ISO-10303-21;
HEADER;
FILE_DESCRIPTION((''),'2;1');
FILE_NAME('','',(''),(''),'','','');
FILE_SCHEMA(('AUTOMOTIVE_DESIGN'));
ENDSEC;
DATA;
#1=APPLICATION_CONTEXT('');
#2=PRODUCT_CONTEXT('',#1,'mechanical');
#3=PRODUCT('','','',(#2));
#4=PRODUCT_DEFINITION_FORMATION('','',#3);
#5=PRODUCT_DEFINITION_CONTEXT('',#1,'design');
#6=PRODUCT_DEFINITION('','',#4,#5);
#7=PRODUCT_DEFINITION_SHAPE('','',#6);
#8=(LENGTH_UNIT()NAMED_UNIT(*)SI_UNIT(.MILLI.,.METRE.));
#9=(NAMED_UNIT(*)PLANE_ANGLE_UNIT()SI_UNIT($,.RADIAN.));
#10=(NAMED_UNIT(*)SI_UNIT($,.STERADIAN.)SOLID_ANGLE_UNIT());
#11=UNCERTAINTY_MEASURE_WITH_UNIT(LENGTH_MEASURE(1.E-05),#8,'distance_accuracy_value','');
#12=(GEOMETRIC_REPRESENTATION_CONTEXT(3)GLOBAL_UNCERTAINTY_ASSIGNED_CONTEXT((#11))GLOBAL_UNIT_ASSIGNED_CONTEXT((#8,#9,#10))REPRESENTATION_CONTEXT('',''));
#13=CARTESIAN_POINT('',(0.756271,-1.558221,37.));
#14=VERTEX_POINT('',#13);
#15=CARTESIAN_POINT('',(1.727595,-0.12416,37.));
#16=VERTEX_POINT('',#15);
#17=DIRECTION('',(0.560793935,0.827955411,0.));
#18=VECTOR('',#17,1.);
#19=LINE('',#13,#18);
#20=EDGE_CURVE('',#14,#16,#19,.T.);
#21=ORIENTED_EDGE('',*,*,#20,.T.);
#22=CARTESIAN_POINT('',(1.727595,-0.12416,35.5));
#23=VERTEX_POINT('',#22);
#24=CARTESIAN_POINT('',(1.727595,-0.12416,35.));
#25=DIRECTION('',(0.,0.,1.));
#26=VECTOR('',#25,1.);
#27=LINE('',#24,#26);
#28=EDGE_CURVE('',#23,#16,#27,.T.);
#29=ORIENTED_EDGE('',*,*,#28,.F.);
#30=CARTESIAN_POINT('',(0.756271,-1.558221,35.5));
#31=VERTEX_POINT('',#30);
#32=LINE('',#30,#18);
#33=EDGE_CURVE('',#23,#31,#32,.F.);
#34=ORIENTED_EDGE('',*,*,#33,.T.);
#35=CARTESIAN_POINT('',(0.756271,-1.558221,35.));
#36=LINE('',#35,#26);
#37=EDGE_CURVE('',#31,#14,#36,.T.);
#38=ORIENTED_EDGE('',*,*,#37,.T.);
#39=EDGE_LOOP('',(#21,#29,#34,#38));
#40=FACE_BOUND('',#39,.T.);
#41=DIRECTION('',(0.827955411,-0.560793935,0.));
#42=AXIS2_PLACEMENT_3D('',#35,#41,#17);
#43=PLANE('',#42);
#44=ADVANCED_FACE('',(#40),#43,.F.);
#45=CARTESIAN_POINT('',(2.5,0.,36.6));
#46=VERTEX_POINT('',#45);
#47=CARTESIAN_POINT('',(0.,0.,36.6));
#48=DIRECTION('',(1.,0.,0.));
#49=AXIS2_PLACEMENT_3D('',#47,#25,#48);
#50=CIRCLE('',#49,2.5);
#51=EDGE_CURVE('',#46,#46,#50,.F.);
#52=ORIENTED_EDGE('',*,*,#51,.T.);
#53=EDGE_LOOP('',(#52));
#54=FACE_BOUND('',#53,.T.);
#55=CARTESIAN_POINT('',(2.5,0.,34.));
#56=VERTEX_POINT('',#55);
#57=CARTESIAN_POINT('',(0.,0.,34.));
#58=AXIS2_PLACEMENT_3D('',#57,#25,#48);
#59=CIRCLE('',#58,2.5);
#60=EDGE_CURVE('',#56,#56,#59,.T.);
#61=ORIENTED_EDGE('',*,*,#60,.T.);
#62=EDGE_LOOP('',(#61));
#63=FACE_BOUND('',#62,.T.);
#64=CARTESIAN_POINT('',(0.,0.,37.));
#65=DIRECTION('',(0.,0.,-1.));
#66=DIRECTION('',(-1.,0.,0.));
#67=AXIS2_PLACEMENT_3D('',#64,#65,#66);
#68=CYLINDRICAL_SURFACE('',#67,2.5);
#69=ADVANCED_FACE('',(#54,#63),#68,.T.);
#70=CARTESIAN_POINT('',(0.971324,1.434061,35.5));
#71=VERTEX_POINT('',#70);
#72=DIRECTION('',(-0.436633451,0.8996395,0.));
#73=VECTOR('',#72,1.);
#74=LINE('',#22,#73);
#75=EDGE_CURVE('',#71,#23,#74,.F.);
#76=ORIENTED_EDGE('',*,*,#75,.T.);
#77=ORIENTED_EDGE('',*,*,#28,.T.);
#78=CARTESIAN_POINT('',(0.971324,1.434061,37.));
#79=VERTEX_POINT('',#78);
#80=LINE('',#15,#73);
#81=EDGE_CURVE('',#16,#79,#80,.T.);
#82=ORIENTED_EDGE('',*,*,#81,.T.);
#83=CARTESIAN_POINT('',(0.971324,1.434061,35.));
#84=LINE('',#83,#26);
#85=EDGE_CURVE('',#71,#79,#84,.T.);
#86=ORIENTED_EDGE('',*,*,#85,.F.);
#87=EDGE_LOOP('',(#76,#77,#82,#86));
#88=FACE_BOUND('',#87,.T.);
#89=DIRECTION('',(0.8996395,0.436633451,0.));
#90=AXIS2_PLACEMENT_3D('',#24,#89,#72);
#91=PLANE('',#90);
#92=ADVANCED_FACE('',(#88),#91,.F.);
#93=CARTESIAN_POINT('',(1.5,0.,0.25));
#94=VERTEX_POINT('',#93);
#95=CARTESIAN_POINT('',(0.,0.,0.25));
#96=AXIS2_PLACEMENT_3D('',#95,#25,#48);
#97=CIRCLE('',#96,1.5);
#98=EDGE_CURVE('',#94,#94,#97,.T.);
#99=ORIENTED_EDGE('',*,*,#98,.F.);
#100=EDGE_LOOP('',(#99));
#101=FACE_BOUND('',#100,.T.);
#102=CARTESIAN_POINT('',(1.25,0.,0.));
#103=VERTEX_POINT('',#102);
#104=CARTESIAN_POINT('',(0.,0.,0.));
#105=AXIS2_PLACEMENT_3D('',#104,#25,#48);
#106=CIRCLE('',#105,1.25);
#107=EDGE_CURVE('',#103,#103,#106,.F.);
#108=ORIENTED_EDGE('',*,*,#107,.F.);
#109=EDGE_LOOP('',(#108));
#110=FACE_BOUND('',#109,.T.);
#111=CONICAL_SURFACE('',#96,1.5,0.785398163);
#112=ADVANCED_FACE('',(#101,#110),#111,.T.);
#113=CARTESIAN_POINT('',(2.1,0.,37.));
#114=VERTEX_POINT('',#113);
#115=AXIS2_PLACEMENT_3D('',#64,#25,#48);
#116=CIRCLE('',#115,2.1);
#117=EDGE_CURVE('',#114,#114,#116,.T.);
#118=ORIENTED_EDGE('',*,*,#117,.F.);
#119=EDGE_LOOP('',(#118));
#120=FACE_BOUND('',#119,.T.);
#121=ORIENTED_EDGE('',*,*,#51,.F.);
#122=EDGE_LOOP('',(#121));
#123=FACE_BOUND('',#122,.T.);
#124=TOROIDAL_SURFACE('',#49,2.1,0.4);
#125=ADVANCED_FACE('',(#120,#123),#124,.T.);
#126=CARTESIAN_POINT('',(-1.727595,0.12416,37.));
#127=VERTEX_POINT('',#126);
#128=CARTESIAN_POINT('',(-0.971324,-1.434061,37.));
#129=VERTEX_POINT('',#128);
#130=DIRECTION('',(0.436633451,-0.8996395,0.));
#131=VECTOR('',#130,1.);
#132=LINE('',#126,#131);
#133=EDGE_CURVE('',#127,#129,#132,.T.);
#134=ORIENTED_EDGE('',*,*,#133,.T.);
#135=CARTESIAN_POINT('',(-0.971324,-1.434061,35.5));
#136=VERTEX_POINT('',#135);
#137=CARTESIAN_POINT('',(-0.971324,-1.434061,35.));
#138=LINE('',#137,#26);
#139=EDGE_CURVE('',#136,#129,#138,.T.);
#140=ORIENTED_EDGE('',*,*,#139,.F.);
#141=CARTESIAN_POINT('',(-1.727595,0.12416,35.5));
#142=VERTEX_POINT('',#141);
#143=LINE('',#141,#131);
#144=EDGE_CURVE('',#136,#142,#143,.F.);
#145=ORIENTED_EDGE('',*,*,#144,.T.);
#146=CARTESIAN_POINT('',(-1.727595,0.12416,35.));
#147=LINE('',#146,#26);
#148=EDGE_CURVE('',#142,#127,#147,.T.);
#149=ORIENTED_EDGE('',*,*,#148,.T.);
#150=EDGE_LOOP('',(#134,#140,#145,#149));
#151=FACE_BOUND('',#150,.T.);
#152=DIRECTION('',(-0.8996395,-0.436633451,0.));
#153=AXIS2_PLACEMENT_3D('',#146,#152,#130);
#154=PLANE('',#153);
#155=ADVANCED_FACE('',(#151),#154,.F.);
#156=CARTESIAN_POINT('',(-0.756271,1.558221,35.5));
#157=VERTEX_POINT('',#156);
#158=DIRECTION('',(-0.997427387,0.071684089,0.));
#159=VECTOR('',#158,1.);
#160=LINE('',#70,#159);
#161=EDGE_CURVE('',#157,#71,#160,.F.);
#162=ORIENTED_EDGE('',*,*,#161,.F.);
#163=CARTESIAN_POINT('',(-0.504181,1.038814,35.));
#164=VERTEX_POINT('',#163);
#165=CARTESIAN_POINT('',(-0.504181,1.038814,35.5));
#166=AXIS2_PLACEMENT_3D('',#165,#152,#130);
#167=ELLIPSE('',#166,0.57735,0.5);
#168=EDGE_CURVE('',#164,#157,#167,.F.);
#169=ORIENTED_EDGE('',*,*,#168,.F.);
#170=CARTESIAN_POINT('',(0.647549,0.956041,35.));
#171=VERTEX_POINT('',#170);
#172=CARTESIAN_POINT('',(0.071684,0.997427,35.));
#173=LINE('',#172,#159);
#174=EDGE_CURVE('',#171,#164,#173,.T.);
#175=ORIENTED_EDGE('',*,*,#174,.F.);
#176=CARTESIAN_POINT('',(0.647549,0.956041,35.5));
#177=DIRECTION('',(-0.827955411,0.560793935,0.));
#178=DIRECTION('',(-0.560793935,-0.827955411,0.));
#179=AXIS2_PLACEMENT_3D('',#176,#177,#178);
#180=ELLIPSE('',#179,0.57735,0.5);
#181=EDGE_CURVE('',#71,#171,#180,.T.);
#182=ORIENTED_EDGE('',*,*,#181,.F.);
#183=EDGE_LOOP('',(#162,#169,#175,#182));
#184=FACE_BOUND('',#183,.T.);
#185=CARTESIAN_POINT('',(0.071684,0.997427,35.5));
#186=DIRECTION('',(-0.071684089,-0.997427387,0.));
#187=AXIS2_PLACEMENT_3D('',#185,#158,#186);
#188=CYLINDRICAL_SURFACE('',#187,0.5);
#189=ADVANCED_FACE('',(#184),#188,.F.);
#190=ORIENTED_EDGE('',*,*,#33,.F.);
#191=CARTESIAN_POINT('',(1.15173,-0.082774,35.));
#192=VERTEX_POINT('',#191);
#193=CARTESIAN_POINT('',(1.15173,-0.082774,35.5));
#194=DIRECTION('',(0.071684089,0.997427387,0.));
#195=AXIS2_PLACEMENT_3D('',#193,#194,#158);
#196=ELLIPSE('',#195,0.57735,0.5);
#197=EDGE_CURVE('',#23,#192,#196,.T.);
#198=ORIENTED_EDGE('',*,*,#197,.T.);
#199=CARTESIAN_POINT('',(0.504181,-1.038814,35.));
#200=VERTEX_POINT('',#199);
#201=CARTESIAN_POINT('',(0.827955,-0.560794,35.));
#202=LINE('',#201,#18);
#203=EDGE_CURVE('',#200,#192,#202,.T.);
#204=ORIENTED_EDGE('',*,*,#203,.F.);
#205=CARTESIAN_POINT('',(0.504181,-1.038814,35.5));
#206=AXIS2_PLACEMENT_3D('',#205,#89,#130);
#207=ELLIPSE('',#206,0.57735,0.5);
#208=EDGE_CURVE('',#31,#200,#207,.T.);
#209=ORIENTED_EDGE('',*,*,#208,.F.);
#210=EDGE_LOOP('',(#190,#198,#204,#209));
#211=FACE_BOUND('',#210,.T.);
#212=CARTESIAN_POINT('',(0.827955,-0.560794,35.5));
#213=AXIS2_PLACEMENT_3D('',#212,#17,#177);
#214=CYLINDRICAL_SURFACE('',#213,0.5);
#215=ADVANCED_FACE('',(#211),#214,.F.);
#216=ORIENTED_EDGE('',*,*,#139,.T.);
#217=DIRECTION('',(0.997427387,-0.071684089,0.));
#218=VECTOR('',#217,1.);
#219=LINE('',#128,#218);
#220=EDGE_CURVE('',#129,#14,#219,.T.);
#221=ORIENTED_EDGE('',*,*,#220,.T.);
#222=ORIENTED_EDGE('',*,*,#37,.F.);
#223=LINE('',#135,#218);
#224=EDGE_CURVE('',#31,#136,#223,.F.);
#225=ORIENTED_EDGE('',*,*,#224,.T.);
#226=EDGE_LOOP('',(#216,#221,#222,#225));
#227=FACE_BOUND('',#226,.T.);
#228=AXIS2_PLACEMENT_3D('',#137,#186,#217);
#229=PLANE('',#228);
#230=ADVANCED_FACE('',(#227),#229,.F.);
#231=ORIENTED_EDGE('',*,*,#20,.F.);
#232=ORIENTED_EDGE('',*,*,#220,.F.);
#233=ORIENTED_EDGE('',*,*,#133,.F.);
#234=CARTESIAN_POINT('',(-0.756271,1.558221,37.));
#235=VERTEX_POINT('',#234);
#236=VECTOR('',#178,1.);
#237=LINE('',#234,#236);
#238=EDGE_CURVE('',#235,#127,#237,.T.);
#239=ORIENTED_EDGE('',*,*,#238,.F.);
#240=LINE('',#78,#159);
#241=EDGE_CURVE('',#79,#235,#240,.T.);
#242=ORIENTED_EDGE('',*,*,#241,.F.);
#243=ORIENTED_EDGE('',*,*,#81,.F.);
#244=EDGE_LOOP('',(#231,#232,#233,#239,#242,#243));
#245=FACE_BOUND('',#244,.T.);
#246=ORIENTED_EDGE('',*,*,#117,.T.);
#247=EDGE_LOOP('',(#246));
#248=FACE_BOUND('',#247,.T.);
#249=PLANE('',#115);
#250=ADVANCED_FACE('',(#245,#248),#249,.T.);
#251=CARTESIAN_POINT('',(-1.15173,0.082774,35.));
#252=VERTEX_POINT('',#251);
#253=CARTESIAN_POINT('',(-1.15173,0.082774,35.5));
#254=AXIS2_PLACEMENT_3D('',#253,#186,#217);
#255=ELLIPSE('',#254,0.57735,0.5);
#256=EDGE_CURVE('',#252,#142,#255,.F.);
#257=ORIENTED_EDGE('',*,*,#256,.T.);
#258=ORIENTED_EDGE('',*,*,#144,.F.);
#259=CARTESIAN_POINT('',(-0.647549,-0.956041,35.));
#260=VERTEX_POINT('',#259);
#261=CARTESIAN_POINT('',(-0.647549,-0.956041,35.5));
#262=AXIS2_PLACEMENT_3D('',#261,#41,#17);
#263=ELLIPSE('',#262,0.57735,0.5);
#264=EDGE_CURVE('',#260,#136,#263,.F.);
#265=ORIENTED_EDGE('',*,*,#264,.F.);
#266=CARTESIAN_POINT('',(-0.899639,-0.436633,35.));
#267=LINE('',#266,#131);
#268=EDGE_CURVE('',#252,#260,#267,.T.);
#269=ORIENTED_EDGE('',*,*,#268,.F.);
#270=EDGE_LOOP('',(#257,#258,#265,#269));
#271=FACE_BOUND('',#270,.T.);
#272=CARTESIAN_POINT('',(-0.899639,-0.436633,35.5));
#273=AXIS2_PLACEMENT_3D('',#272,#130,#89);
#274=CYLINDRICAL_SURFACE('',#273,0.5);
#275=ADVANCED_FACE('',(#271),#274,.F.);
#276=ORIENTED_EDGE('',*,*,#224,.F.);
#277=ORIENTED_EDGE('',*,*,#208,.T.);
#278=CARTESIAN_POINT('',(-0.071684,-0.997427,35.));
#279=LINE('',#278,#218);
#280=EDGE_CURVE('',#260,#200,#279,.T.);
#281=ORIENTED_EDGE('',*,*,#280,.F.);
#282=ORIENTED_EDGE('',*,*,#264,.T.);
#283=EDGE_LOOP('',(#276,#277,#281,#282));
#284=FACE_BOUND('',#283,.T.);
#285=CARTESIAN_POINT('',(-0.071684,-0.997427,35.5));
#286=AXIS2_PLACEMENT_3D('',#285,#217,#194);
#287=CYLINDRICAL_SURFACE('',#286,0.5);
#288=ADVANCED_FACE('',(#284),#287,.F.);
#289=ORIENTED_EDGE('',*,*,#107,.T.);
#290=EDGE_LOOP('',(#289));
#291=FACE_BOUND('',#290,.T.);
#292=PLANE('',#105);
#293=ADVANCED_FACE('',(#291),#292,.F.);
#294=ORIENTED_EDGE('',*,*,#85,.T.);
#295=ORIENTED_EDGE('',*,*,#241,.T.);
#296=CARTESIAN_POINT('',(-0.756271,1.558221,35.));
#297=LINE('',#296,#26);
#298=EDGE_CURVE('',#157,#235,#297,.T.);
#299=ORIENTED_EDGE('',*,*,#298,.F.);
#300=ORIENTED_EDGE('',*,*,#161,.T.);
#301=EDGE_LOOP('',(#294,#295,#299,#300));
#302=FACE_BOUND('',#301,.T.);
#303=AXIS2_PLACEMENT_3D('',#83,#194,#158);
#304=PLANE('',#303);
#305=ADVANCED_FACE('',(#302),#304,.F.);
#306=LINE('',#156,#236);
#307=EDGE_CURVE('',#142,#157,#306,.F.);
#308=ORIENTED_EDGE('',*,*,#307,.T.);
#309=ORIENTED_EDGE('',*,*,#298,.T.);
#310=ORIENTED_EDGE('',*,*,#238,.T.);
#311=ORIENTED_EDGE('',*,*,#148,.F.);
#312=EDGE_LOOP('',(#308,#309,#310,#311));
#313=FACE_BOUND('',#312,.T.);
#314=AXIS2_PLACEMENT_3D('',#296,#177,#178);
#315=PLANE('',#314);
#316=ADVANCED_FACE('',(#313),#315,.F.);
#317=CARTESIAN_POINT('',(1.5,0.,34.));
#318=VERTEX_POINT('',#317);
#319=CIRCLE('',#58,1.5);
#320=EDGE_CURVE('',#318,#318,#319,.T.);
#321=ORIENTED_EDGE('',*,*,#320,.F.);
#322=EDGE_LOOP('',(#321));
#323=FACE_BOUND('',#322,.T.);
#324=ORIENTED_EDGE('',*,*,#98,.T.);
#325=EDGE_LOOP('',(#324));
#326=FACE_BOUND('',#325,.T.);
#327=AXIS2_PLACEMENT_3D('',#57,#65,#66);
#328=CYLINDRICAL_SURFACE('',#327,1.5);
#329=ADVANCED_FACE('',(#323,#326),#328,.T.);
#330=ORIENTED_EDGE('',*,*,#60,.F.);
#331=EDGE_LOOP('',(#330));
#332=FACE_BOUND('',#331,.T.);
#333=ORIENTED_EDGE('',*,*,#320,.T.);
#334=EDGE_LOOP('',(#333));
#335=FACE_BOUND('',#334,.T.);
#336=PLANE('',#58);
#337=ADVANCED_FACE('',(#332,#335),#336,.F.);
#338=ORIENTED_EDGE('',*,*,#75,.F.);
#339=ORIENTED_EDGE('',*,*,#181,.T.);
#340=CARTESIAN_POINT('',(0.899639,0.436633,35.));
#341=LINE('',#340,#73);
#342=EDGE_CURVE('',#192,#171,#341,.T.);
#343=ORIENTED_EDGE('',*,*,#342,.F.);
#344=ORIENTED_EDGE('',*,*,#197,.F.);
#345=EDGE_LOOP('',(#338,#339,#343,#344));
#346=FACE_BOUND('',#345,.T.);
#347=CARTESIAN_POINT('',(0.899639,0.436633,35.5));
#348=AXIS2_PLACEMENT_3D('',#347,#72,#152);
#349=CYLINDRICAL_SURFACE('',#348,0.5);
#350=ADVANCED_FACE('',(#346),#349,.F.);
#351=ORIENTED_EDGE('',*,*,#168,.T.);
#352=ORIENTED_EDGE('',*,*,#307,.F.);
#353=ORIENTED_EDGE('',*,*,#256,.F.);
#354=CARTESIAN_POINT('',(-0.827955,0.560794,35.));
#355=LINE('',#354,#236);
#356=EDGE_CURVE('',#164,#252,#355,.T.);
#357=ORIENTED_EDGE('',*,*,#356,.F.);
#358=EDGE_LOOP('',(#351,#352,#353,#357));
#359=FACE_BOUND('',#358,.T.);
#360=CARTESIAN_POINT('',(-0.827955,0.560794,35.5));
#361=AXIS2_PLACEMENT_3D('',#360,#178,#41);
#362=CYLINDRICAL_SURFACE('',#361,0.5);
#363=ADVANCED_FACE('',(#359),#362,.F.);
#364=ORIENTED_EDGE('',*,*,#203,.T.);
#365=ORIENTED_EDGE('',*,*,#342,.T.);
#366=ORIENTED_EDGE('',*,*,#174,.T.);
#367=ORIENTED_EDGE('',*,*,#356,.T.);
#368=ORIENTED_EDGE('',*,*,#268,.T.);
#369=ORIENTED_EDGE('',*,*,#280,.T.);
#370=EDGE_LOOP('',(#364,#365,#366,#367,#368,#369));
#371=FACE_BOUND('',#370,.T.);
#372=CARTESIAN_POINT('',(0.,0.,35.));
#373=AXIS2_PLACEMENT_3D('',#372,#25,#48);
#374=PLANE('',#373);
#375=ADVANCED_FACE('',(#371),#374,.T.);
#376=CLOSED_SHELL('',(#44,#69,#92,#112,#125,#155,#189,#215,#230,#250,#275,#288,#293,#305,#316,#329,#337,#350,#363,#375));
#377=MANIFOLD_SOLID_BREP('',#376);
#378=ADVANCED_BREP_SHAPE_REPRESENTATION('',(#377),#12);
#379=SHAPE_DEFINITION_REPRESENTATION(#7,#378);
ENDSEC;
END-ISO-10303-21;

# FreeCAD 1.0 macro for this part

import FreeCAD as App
import Part
import Sketcher

V = App.Vector


def edges_at(feature, points):
    """Names of the edges that pass closest to the given points."""
    edges = feature.Shape.Edges
    near = lambda p: min(range(len(edges)), key=lambda i: edges[i].distToShape(Part.Vertex(*p))[0])
    return sorted({f"Edge{near(p) + 1}" for p in points})


def add_polygon(sketch, points):
    """Adds a closed chain of lines whose ends are joined by coincident constraints."""
    first, n = sketch.GeometryCount, len(points)
    for a, b in zip(points, points[1:] + points[:1]):
        sketch.addGeometry(Part.LineSegment(App.Vector(*a, 0), App.Vector(*b, 0)), False)
    for i in range(n):
        sketch.addConstraint(Sketcher.Constraint("Coincident", first + i, 2, first + (i + 1) % n, 1))

doc = App.newDocument("Part")
params = doc.addObject("Spreadsheet::Sheet", "Params")
for row, (alias, value) in enumerate([
    ("sketch1_diameter", "3 mm"),
    ("pad1_length", "34 mm"),
    ("sketch2_diameter", "5 mm"),
    ("pad2_length", "3 mm"),
    ("pocket1_length", "2 mm"),
    ("fillet_radius", "0.4 mm"),
    ("chamfer_size", "0.25 mm"),
    ("fillet2_radius", "0.5 mm"),
], start=1):
    params.set(f"A{row}", alias)
    params.set(f"B{row}", "=" + value)
    params.setAlias(f"B{row}", alias)

body = doc.addObject("PartDesign::Body", "Body")

sketch1 = body.newObject("Sketcher::SketchObject", "Sketch")
sketch1.AttachmentSupport = (doc.getObject("XY_Plane"), [""])
sketch1.MapMode = "FlatFace"
sketch1.addGeometry(Part.Circle(V(0, 0, 0), V(0, 0, 1), 1.5), False)
sketch1.addConstraint(Sketcher.Constraint("Coincident", 0, 3, -1, 1))
sketch1.addConstraint(Sketcher.Constraint("Diameter", 0, 3.0))
sketch1.setExpression("Constraints[1]", "Params.sketch1_diameter")
pad1 = body.newObject("PartDesign::Pad", "Pad")
pad1.Profile = sketch1
pad1.setExpression("Length", "Params.pad1_length")

sketch2 = body.newObject("Sketcher::SketchObject", "Sketch001")
sketch2.AttachmentSupport = (doc.getObject("XY_Plane"), [""])
sketch2.MapMode = "FlatFace"
sketch2.AttachmentOffset = App.Placement(V(0, 0, 34), App.Rotation())
sketch2.addGeometry(Part.Circle(V(0, 0, 0), V(0, 0, 1), 2.5), False)
sketch2.addConstraint(Sketcher.Constraint("Coincident", 0, 3, -1, 1))
sketch2.addConstraint(Sketcher.Constraint("Diameter", 0, 5.0))
sketch2.setExpression("Constraints[1]", "Params.sketch2_diameter")
pad2 = body.newObject("PartDesign::Pad", "Pad001")
pad2.Profile = sketch2
pad2.setExpression("Length", "Params.pad2_length")

sketch3 = body.newObject("Sketcher::SketchObject", "Sketch002")
sketch3.AttachmentSupport = (doc.getObject("XY_Plane"), [""])
sketch3.MapMode = "FlatFace"
sketch3.AttachmentOffset = App.Placement(V(0, 0, 37), App.Rotation())
add_polygon(sketch3, [(1.7, -0.1), (1, 1.4), (-0.8, 1.6), (-1.7, 0.1), (-1, -1.4), (0.8, -1.6)])
sketch3.addConstraint(Sketcher.Constraint("Symmetric", 0, 2, 3, 2, -1, 1))
sketch3.addConstraint(Sketcher.Constraint("Symmetric", 1, 2, 4, 2, -1, 1))
sketch3.addConstraint(Sketcher.Constraint("Symmetric", 2, 2, 5, 2, -1, 1))
sketch3.addConstraint(Sketcher.Constraint("Equal", 0, 1))
sketch3.addConstraint(Sketcher.Constraint("Equal", 1, 2))
sketch3.addConstraint(Sketcher.Constraint("DistanceY", 2, 2, 0, 2, 1.3099))
sketch3.addConstraint(Sketcher.Constraint("Distance", 0, 1.732051))
sketch3.addConstraint(Sketcher.Constraint("DistanceY", -1, 1, 0, 2, 1.434061))
sketch3.addConstraint(Sketcher.Constraint("DistanceX", 1, 2, -1, 1, 0.756271))
pocket1 = body.newObject("PartDesign::Pocket", "Pocket")
pocket1.Profile = sketch3
pocket1.setExpression("Length", "Params.pocket1_length")
doc.recompute()

fillet = body.newObject("PartDesign::Fillet", "Fillet")
fillet.Base = (pocket1, edges_at(pocket1, [(-2.5, 0, 37)]))
fillet.setExpression("Radius", "Params.fillet_radius")
doc.recompute()

chamfer = body.newObject("PartDesign::Chamfer", "Chamfer")
chamfer.Base = (fillet, edges_at(fillet, [(-1.5, 0, 0)]))
chamfer.setExpression("Size", "Params.chamfer_size")
doc.recompute()

fillet2 = body.newObject("PartDesign::Fillet", "Fillet001")
fillet2.Base = (chamfer, edges_at(chamfer, [
    (1.242, -0.841, 35),
    (-0.108, -1.496, 35),
    (-1.349, -0.655, 35),
    (-1.242, 0.841, 35),
    (0.108, 1.496, 35),
    (1.349, 0.655, 35),
]))
fillet2.setExpression("Radius", "Params.fillet2_radius")

doc.recompute()
